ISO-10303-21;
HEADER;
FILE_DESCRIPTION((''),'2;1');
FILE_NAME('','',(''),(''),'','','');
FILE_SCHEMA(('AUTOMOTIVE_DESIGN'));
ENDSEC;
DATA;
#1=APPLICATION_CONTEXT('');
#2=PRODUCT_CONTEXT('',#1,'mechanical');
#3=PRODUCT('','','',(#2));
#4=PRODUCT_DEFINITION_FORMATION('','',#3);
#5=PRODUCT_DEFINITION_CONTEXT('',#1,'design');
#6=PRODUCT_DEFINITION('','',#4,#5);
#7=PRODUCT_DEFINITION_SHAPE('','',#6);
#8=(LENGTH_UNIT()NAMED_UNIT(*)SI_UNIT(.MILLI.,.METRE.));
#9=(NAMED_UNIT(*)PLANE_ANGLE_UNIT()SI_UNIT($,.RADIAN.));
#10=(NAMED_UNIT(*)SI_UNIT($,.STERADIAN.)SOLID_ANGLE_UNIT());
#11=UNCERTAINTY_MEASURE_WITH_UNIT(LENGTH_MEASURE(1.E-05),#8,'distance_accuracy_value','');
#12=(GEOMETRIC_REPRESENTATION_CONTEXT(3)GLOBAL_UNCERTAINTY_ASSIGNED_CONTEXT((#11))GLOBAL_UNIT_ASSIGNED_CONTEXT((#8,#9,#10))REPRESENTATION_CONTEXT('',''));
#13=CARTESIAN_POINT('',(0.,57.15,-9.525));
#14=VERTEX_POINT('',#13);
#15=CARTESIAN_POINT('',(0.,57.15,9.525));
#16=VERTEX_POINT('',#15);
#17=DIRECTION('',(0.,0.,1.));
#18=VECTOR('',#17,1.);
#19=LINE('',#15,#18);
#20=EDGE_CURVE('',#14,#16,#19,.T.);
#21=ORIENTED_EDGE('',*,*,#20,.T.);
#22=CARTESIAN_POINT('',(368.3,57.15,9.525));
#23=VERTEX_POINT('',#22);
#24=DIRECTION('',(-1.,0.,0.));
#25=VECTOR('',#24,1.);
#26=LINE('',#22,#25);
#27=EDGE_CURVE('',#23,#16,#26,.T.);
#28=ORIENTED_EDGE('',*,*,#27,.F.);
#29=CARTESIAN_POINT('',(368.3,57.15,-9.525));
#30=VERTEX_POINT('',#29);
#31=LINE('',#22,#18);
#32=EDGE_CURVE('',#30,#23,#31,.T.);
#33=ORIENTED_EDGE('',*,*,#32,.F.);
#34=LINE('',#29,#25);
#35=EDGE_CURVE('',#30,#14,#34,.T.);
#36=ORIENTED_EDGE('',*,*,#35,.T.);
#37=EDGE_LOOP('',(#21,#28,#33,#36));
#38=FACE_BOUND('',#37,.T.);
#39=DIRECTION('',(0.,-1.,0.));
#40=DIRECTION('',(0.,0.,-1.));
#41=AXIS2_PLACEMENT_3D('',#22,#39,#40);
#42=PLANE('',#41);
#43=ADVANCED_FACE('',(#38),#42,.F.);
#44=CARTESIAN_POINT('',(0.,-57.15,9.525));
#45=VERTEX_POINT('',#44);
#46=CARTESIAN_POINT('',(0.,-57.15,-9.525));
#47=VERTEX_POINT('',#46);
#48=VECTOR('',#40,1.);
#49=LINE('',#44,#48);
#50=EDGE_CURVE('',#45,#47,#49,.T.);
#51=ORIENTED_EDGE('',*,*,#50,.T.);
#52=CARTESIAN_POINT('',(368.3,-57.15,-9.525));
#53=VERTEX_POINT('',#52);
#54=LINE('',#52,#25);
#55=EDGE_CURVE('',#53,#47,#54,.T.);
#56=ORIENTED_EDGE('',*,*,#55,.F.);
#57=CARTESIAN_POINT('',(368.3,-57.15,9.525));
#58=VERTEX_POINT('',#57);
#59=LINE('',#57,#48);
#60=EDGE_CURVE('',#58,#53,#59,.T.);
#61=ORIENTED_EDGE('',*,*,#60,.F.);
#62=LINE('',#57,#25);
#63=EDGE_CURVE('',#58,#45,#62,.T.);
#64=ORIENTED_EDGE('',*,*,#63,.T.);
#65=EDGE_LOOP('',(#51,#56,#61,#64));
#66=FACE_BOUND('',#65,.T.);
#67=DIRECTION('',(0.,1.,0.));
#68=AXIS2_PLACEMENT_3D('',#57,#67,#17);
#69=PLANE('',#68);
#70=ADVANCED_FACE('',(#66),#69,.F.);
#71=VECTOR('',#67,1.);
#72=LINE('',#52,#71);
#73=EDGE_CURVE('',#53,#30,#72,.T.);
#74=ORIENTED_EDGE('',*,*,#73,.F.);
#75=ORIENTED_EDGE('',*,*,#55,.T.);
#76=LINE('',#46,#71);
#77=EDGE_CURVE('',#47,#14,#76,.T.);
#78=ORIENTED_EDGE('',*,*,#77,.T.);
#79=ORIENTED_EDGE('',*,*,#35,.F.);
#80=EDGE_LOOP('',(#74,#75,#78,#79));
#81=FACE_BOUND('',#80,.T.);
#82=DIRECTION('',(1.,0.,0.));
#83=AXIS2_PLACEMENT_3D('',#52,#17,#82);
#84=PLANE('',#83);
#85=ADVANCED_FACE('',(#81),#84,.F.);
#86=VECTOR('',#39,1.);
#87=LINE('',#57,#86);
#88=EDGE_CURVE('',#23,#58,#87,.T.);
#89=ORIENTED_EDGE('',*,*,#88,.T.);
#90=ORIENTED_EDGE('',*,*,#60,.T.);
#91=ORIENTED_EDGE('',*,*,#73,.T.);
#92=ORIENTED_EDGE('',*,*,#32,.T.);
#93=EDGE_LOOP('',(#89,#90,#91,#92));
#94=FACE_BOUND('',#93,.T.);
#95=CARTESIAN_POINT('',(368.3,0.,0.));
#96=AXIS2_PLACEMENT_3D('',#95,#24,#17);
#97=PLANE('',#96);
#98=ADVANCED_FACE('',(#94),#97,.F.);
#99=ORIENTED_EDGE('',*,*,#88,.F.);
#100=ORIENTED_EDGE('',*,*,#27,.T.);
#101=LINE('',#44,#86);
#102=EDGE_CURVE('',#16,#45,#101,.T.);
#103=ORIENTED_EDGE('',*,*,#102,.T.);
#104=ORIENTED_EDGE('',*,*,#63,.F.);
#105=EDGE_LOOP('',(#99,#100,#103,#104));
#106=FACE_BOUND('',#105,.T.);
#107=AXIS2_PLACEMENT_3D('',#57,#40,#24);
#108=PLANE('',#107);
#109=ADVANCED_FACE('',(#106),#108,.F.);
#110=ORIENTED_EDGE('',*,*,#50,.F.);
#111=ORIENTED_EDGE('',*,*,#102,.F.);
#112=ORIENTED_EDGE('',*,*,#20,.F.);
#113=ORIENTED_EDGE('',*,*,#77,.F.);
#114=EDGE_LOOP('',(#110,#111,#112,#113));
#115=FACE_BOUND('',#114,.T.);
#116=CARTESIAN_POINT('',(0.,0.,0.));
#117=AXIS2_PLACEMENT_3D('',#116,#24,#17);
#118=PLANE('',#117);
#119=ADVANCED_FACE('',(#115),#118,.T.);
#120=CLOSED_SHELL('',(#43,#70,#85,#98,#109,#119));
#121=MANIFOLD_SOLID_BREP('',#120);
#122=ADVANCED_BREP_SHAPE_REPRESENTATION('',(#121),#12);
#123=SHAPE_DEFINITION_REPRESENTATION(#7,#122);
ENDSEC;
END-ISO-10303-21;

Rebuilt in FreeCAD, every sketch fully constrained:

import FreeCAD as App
import Part
import Sketcher

V = App.Vector
Q = App.Units.Quantity

doc = App.newDocument("Part")
body = doc.addObject("PartDesign::Body", "Body")

sketch1 = body.newObject("Sketcher::SketchObject", "Sketch")
sketch1.AttachmentSupport = (doc.getObject("YZ_Plane"), [""])
sketch1.MapMode = "FlatFace"
sketch1.addGeometry(Part.LineSegment(V(57, 10, 0), V(-57, 10, 0)), False)
sketch1.addGeometry(Part.LineSegment(V(-57, 10, 0), V(-57, -10, 0)), False)
sketch1.addGeometry(Part.LineSegment(V(-57, -10, 0), V(57, -10, 0)), False)
sketch1.addGeometry(Part.LineSegment(V(57, -10, 0), V(57, 10, 0)), False)
sketch1.addConstraint(Sketcher.Constraint("Coincident", 0, 2, 1, 1))
sketch1.addConstraint(Sketcher.Constraint("Coincident", 1, 2, 2, 1))
sketch1.addConstraint(Sketcher.Constraint("Coincident", 2, 2, 3, 1))
sketch1.addConstraint(Sketcher.Constraint("Coincident", 3, 2, 0, 1))
sketch1.addConstraint(Sketcher.Constraint("Horizontal", 0))
sketch1.addConstraint(Sketcher.Constraint("Vertical", 1))
sketch1.addConstraint(Sketcher.Constraint("Horizontal", 2))
sketch1.addConstraint(Sketcher.Constraint("Vertical", 3))
sketch1.addConstraint(Sketcher.Constraint("Symmetric", 0, 2, 2, 2, -1, 1))
sketch1.addConstraint(Sketcher.Constraint("DistanceX", 0, 2, 0, 1, Q("4.5 in")))
sketch1.addConstraint(Sketcher.Constraint("DistanceY", 1, 2, 1, 1, Q("0.75 in")))
pad1 = body.newObject("PartDesign::Pad", "Pad")
pad1.Profile = sketch1
pad1.Length = Q("14.5 in")

doc.recompute()
